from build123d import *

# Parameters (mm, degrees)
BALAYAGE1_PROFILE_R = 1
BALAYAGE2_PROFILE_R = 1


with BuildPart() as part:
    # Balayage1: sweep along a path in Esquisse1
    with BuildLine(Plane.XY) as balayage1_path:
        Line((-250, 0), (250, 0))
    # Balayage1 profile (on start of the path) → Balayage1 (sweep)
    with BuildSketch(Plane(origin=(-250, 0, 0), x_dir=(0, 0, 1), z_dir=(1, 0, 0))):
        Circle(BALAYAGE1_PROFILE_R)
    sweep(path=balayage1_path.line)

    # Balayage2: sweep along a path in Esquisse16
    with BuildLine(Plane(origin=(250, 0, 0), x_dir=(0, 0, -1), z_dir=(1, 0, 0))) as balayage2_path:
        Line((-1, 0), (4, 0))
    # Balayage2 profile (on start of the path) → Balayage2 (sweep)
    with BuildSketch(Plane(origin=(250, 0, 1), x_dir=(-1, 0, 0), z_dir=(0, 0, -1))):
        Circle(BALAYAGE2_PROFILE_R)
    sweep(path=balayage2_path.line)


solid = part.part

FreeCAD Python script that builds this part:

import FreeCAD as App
import Part
import Sketcher

V = App.Vector

doc = App.newDocument("Part")
body = doc.addObject("PartDesign::Body", "Body")

# Sketch on YZ plane
sketch1 = doc.addObject("Sketcher::SketchObject", "Sketch")
body.addObject(sketch1)
sketch1.AttachmentSupport = (doc.YZ_Plane, [""])
sketch1.MapMode = "FlatFace"
sketch1.AttachmentOffset = App.Placement(V(0, 0, -250), App.Rotation())
sketch1.addGeometry(Part.Circle(V(0, 0, 0), V(0, 0, 1), 1), False)
sketch1.addConstraint(Sketcher.Constraint("Coincident", 0, 3, -1, 1))
sketch1.addConstraint(Sketcher.Constraint("Diameter", 0, 2.0))

# Sketch on XY plane
sketch2 = doc.addObject("Sketcher::SketchObject", "Sketch001")
body.addObject(sketch2)
sketch2.AttachmentSupport = (doc.XY_Plane, [""])
sketch2.MapMode = "FlatFace"
sketch2.addGeometry(Part.LineSegment(V(-250, 0, 0), V(250, 0, 0)), False)
sketch2.addConstraint(Sketcher.Constraint("Horizontal", 0))
sketch2.addConstraint(Sketcher.Constraint("Symmetric", 0, 1, 0, 2, -1, 1))
sketch2.addConstraint(Sketcher.Constraint("DistanceX", 0, 1, 0, 2, 500.0))
doc.recompute()

additivepipe = doc.addObject("PartDesign::AdditivePipe", "AdditivePipe")
body.addObject(additivepipe)
additivepipe.Profile = sketch1
additivepipe.Spine = (sketch2, ["Edge1"])

# Sketch on XY plane
sketch3 = doc.addObject("Sketcher::SketchObject", "Sketch002")
body.addObject(sketch3)
sketch3.AttachmentSupport = (doc.XY_Plane, [""])
sketch3.MapMode = "FlatFace"
sketch3.AttachmentOffset = App.Placement(V(0, 0, 1), App.Rotation())
sketch3.addGeometry(Part.Circle(V(250, 0, 0), V(0, 0, 1), 1), False)
sketch3.addConstraint(Sketcher.Constraint("PointOnObject", 0, 3, -1))
sketch3.addConstraint(Sketcher.Constraint("Diameter", 0, 2.0))
sketch3.addConstraint(Sketcher.Constraint("DistanceX", -1, 1, 0, 3, 250.0))

# Sketch on XZ plane
sketch4 = doc.addObject("Sketcher::SketchObject", "Sketch003")
body.addObject(sketch4)
sketch4.AttachmentSupport = (doc.XZ_Plane, [""])
sketch4.MapMode = "FlatFace"
sketch4.addGeometry(Part.LineSegment(V(250, 1, 0), V(250, -4, 0)), False)
sketch4.addConstraint(Sketcher.Constraint("Vertical", 0))
sketch4.addConstraint(Sketcher.Constraint("DistanceY", 0, 2, 0, 1, 5.0))
sketch4.addConstraint(Sketcher.Constraint("DistanceX", -1, 1, 0, 1, 250.0))
sketch4.addConstraint(Sketcher.Constraint("DistanceY", -1, 1, 0, 1, 1.0))
doc.recompute()

additivepipe2 = doc.addObject("PartDesign::AdditivePipe", "AdditivePipe001")
body.addObject(additivepipe2)
additivepipe2.Profile = sketch3
additivepipe2.Spine = (sketch4, ["Edge1"])

doc.recompute()
